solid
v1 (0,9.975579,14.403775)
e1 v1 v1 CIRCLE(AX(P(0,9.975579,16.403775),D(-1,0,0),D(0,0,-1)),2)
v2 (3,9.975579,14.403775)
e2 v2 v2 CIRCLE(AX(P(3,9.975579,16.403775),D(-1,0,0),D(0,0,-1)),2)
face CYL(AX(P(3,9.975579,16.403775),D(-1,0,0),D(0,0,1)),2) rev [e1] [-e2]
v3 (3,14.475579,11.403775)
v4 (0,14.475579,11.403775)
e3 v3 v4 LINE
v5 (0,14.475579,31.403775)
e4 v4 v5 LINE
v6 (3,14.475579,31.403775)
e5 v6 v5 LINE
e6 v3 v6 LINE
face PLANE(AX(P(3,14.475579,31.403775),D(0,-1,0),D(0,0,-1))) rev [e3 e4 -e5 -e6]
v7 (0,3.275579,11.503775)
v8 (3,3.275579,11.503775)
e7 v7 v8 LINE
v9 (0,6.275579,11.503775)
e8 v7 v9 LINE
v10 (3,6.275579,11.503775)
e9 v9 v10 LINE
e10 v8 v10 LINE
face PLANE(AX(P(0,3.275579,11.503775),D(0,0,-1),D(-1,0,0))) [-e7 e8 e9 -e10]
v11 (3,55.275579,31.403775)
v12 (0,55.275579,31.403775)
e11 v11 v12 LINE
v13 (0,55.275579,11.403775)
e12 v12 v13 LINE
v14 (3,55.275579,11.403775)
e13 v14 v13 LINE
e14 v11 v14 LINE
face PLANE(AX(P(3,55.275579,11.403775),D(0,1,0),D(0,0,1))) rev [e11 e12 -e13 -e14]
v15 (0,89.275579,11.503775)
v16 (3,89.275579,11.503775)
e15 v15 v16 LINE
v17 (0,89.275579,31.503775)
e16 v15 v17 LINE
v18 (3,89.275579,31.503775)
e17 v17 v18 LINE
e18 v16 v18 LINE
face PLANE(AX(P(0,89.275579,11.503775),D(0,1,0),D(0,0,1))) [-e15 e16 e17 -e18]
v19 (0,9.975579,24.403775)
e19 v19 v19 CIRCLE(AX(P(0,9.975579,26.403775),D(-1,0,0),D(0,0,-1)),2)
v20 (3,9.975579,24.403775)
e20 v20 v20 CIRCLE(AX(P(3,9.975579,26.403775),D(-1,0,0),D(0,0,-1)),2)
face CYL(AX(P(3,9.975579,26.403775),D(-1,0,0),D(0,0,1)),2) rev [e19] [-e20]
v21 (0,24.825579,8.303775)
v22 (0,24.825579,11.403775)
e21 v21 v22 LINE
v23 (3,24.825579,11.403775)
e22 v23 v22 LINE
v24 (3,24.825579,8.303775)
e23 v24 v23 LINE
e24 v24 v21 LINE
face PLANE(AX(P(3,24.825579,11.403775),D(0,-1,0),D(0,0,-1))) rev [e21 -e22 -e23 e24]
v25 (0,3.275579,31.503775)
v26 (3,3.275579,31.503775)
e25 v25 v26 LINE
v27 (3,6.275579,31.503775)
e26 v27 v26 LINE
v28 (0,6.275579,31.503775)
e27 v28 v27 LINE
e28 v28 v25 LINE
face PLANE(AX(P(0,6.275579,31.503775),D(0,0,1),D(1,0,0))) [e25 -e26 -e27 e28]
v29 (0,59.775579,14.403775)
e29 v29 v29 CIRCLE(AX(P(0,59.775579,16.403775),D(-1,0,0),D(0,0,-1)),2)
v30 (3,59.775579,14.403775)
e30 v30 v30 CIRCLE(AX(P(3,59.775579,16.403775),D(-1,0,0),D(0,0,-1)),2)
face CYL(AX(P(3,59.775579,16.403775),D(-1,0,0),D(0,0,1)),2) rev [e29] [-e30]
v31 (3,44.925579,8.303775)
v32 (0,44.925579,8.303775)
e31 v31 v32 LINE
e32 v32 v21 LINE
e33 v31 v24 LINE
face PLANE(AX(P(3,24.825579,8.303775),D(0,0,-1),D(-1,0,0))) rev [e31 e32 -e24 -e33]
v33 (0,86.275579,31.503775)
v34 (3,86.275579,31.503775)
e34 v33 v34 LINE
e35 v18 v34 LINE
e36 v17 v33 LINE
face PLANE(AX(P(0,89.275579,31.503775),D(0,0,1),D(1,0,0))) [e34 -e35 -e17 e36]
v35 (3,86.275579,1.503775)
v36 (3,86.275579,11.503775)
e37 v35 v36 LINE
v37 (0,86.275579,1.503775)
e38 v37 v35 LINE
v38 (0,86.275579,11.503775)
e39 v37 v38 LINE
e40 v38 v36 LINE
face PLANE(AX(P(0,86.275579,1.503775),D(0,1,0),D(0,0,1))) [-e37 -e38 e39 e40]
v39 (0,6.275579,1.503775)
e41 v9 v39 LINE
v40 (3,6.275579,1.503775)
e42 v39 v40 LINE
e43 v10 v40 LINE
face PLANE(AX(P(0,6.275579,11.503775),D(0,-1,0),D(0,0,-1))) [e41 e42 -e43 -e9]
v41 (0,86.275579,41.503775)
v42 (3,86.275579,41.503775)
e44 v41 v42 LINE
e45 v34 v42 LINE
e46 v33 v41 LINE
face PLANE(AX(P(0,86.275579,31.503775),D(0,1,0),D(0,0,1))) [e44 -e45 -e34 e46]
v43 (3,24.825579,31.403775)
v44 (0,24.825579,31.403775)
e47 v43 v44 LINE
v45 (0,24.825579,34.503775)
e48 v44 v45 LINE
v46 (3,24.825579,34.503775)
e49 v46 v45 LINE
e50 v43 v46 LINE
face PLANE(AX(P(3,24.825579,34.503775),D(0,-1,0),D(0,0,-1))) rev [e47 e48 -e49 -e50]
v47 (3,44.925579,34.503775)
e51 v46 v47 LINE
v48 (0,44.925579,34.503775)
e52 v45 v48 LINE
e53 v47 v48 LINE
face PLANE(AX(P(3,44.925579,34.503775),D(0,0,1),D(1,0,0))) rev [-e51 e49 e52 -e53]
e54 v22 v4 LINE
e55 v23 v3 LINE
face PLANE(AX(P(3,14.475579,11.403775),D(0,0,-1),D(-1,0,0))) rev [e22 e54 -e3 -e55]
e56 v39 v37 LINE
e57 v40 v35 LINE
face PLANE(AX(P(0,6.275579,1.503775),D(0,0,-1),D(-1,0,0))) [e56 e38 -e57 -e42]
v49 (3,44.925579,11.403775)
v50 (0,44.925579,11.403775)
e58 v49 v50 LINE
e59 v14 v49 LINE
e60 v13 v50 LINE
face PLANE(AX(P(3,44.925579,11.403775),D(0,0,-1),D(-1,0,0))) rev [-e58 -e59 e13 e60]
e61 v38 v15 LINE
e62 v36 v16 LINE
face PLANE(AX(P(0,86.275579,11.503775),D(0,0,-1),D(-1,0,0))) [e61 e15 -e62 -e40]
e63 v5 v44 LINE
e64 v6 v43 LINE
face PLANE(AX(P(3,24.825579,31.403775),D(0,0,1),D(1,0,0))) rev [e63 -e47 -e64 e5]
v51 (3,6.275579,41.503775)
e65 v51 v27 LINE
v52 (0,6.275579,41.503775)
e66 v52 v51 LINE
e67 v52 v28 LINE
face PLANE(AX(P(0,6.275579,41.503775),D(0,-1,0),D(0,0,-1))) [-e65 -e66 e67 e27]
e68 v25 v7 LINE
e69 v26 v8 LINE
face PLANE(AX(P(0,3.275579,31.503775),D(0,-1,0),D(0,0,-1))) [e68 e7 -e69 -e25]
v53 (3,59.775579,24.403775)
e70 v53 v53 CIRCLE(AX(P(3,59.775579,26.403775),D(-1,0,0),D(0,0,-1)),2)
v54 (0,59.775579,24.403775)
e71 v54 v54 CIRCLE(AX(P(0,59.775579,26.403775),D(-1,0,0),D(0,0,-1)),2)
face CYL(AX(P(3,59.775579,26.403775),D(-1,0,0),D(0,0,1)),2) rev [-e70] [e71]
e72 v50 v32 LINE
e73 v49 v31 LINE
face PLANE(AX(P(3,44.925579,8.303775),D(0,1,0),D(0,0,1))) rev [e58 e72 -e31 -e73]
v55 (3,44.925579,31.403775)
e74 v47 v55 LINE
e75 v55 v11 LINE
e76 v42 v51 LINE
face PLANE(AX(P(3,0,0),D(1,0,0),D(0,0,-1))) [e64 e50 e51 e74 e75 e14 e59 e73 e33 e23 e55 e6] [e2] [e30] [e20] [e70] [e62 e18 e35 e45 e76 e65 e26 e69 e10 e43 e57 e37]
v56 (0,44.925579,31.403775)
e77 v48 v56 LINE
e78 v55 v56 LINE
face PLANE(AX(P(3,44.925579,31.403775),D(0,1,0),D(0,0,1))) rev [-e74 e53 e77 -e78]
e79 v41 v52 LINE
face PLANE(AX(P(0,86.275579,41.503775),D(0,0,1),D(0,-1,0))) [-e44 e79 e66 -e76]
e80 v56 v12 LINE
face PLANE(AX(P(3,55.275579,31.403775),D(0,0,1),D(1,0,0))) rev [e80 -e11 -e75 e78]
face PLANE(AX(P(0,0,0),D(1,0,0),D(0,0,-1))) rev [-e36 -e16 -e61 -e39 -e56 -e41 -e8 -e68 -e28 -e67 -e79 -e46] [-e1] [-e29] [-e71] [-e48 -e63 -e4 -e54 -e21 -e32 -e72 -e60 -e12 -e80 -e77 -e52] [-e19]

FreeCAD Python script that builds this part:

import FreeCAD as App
import Part
import Sketcher


def add_polygon(sketch, points):
    """Adds a closed chain of lines whose ends are joined by coincident constraints."""
    first, n = sketch.GeometryCount, len(points)
    for a, b in zip(points, points[1:] + points[:1]):
        sketch.addGeometry(Part.LineSegment(App.Vector(*a, 0), App.Vector(*b, 0)), False)
    for i in range(n):
        sketch.addConstraint(Sketcher.Constraint("Coincident", first + i, 2, first + (i + 1) % n, 1))

doc = App.newDocument("Part")
body = doc.addObject("PartDesign::Body", "Body")

# Sketch on YZ plane
sketch1 = body.newObject("Sketcher::SketchObject", "Sketch")
sketch1.AttachmentSupport = (doc.getObject("YZ_Plane"), [""])
sketch1.MapMode = "FlatFace"
sketch1.AttachmentOffset = App.Placement(App.Vector(0, 0, 3), App.Rotation())
add_polygon(sketch1, [(89.3, 31.5), (86.3, 31.5), (86.3, 41.5), (6.3, 41.5), (6.3, 31.5), (3.3, 31.5), (3.3, 11.5), (6.3, 11.5), (6.3, 1.5), (86.3, 1.5), (86.3, 11.5), (89.3, 11.5)])  # lines 0-11
sketch1.addConstraint(Sketcher.Constraint("Horizontal", 0))
sketch1.addConstraint(Sketcher.Constraint("Vertical", 1))
sketch1.addConstraint(Sketcher.Constraint("Horizontal", 2))
sketch1.addConstraint(Sketcher.Constraint("Vertical", 3))
sketch1.addConstraint(Sketcher.Constraint("Horizontal", 4))
sketch1.addConstraint(Sketcher.Constraint("Vertical", 5))
sketch1.addConstraint(Sketcher.Constraint("Horizontal", 6))
sketch1.addConstraint(Sketcher.Constraint("Vertical", 7))
sketch1.addConstraint(Sketcher.Constraint("Horizontal", 8))
sketch1.addConstraint(Sketcher.Constraint("Vertical", 9))
sketch1.addConstraint(Sketcher.Constraint("Horizontal", 10))
sketch1.addConstraint(Sketcher.Constraint("Vertical", 11))
sketch1.addConstraint(Sketcher.Constraint("Horizontal", 0, 2, 3, 2))
sketch1.addConstraint(Sketcher.Constraint("Horizontal", 6, 2, 9, 2))
sketch1.addConstraint(Sketcher.Constraint("Vertical", 3, 2, 6, 2))
sketch1.addConstraint(Sketcher.Constraint("Vertical", 1, 2, 8, 2))
sketch1.addConstraint(Sketcher.Constraint("Equal", 0, 4))
sketch1.addConstraint(Sketcher.Constraint("Equal", 3, 7))
sketch1.addConstraint(Sketcher.Constraint("DistanceX", 0, 2, 0, 1, 3.0))
sketch1.addConstraint(Sketcher.Constraint("DistanceX", 2, 2, 2, 1, 80.0))
sketch1.addConstraint(Sketcher.Constraint("DistanceY", 1, 1, 1, 2, 10.0))
sketch1.addConstraint(Sketcher.Constraint("DistanceY", 5, 2, 5, 1, 20.0))
sketch1.addConstraint(Sketcher.Constraint("DistanceX", -1, 1, 0, 2, 86.275579))
sketch1.addConstraint(Sketcher.Constraint("DistanceY", -1, 1, 0, 2, 31.503775))
pad1 = body.newObject("PartDesign::Pad", "Pad")
pad1.Profile = sketch1
pad1.Length = 3
pad1.Reversed = True

# Sketch on YZ plane
sketch2 = body.newObject("Sketcher::SketchObject", "Sketch001")
sketch2.AttachmentSupport = (doc.getObject("YZ_Plane"), [""])
sketch2.MapMode = "FlatFace"
sketch2.addGeometry(Part.Circle(App.Vector(10, 26.4, 0), App.Vector(0, 0, 1), 2), False)  # 0
sketch2.addGeometry(Part.Circle(App.Vector(59.8, 16.4, 0), App.Vector(0, 0, 1), 2), False)  # 1
sketch2.addGeometry(Part.Circle(App.Vector(59.8, 26.4, 0), App.Vector(0, 0, 1), 2), False)  # 2
sketch2.addGeometry(Part.Circle(App.Vector(10, 16.4, 0), App.Vector(0, 0, 1), 2), False)  # 3
add_polygon(sketch2, [(55.3, 11.4), (44.9, 11.4), (44.9, 8.3), (24.8, 8.3), (24.8, 11.4), (14.5, 11.4), (14.5, 31.4), (24.8, 31.4), (24.8, 34.5), (44.9, 34.5), (44.9, 31.4), (55.3, 31.4)])  # lines 4-15
sketch2.addConstraint(Sketcher.Constraint("Horizontal", 4))
sketch2.addConstraint(Sketcher.Constraint("Vertical", 5))
sketch2.addConstraint(Sketcher.Constraint("Horizontal", 6))
sketch2.addConstraint(Sketcher.Constraint("Vertical", 7))
sketch2.addConstraint(Sketcher.Constraint("Horizontal", 8))
sketch2.addConstraint(Sketcher.Constraint("Vertical", 9))
sketch2.addConstraint(Sketcher.Constraint("Horizontal", 10))
sketch2.addConstraint(Sketcher.Constraint("Vertical", 11))
sketch2.addConstraint(Sketcher.Constraint("Horizontal", 12))
sketch2.addConstraint(Sketcher.Constraint("Vertical", 13))
sketch2.addConstraint(Sketcher.Constraint("Horizontal", 14))
sketch2.addConstraint(Sketcher.Constraint("Vertical", 15))
sketch2.addConstraint(Sketcher.Constraint("Equal", 0, 1))
sketch2.addConstraint(Sketcher.Constraint("Equal", 1, 2))
sketch2.addConstraint(Sketcher.Constraint("Equal", 2, 3))
sketch2.addConstraint(Sketcher.Constraint("Horizontal", 0, 3, 2, 3))
sketch2.addConstraint(Sketcher.Constraint("Horizontal", 1, 3, 3, 3))
sketch2.addConstraint(Sketcher.Constraint("Horizontal", 4, 2, 7, 2))
sketch2.addConstraint(Sketcher.Constraint("Horizontal", 10, 2, 13, 2))
sketch2.addConstraint(Sketcher.Constraint("Vertical", 1, 3, 2, 3))
sketch2.addConstraint(Sketcher.Constraint("Vertical", 0, 3, 3, 3))
sketch2.addConstraint(Sketcher.Constraint("Vertical", 7, 2, 10, 2))
sketch2.addConstraint(Sketcher.Constraint("Vertical", 5, 2, 12, 2))
sketch2.addConstraint(Sketcher.Constraint("Equal", 4, 8))
sketch2.addConstraint(Sketcher.Constraint("Equal", 7, 11))
sketch2.addConstraint(Sketcher.Constraint("Diameter", 0, 4.0))
sketch2.addConstraint(Sketcher.Constraint("DistanceY", 9, 1, 9, 2, 20.0))
sketch2.addConstraint(Sketcher.Constraint("DistanceX", 6, 2, 6, 1, 20.1))
sketch2.addConstraint(Sketcher.Constraint("DistanceY", 5, 2, 5, 1, 3.1))
sketch2.addConstraint(Sketcher.Constraint("DistanceY", 1, 3, 0, 3, 10.0))
sketch2.addConstraint(Sketcher.Constraint("DistanceY", 4, 2, 1, 3, 5.0))
sketch2.addConstraint(Sketcher.Constraint("DistanceX", 4, 2, 4, 1, 10.35))
sketch2.addConstraint(Sketcher.Constraint("DistanceX", 0, 3, 1, 3, 49.8))
sketch2.addConstraint(Sketcher.Constraint("DistanceX", 3, 3, 8, 2, 4.5))
sketch2.addConstraint(Sketcher.Constraint("DistanceX", -1, 1, 0, 3, 9.975579))
sketch2.addConstraint(Sketcher.Constraint("DistanceY", -1, 1, 0, 3, 26.403775))
pocket1 = body.newObject("PartDesign::Pocket", "Pocket")
pocket1.Profile = sketch2
pocket1.Type = "ThroughAll"
pocket1.Reversed = True

doc.recompute()
